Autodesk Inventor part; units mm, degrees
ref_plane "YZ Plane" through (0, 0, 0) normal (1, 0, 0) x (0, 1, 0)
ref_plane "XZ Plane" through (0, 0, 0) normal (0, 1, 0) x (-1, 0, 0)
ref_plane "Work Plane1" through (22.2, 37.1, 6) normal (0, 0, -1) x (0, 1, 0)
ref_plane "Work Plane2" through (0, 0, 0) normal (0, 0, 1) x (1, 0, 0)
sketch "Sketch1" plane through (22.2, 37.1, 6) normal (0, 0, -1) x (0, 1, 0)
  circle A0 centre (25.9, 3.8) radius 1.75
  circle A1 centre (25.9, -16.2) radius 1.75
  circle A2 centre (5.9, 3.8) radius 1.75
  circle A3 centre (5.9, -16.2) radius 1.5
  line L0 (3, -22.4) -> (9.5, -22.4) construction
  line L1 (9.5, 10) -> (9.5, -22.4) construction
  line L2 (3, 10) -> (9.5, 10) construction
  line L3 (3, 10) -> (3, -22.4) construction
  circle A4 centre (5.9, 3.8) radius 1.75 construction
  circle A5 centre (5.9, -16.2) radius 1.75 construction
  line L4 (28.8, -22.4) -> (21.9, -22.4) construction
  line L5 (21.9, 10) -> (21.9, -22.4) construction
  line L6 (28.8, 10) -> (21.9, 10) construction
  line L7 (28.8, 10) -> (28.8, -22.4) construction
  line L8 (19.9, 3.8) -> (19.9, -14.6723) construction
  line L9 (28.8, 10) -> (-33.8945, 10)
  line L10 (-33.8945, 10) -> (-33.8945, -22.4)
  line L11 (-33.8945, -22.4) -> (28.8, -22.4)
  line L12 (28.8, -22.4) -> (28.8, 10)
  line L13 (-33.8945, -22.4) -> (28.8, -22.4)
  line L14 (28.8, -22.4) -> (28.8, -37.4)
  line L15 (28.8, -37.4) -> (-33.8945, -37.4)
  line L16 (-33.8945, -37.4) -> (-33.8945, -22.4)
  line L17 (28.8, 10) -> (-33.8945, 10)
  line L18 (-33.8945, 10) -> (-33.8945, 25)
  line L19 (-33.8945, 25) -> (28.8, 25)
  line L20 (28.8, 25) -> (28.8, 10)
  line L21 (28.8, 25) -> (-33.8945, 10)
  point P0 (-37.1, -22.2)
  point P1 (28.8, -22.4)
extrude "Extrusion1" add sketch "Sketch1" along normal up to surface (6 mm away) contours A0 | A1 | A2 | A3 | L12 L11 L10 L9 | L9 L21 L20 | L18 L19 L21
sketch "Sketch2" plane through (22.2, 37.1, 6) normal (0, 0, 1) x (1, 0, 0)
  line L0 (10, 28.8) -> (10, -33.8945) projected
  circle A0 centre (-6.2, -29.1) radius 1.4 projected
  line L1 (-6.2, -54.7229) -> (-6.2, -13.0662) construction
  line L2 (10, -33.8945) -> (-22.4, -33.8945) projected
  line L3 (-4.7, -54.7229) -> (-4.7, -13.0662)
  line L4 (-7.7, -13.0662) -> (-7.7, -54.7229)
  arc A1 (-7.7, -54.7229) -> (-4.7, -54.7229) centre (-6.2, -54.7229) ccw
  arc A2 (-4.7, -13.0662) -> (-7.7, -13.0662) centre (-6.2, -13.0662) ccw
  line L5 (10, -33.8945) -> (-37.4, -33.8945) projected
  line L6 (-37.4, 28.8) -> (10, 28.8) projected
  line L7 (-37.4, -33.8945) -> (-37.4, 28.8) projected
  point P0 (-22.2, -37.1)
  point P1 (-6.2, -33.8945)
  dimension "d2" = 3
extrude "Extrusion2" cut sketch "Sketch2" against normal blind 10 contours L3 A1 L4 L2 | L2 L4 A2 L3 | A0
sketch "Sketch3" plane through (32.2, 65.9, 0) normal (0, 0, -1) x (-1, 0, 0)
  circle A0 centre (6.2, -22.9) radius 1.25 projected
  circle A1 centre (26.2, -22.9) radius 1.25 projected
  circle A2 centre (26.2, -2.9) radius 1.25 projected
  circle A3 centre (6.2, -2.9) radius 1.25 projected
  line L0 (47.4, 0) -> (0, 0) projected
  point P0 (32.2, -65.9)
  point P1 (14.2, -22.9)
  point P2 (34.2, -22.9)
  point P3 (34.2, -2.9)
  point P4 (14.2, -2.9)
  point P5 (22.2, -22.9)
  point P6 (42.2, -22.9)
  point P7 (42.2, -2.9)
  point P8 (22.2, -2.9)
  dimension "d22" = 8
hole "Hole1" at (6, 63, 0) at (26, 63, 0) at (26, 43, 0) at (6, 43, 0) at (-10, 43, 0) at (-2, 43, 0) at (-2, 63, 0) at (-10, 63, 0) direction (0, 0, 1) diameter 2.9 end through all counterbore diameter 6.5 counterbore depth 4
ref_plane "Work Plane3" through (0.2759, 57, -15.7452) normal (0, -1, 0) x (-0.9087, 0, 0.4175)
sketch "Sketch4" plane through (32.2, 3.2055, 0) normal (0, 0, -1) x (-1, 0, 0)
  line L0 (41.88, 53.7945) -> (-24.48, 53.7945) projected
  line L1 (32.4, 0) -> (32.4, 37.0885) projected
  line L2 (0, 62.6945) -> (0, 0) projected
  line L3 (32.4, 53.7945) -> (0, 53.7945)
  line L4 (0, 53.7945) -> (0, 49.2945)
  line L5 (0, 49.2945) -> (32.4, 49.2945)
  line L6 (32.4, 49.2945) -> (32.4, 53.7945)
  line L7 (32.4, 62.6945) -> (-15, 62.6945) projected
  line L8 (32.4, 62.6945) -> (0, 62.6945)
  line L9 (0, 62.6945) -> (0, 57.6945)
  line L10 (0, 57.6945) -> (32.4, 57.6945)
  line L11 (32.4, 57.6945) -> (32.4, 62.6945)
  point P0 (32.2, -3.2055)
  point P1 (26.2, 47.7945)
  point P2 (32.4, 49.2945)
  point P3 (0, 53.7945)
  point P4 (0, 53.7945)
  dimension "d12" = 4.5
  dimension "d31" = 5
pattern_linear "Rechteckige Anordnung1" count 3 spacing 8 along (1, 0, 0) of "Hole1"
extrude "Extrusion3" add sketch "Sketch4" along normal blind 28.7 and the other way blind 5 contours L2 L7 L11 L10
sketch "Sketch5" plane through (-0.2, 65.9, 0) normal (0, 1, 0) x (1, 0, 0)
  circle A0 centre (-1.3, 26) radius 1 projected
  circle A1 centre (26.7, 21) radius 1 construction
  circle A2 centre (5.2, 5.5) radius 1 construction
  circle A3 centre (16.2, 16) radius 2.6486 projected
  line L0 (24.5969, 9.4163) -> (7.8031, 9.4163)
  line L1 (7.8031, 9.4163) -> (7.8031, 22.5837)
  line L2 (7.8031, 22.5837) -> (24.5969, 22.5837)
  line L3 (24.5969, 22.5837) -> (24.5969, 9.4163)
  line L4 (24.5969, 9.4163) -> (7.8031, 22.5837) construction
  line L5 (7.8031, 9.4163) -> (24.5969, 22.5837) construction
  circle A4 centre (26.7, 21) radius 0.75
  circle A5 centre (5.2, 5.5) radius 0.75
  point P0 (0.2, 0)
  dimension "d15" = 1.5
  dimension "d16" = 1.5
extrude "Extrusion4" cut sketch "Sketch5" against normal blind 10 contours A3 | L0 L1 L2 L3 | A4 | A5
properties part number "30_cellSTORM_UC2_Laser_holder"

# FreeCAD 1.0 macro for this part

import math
import FreeCAD as App
import Part
import Sketcher
Q = App.Units.Quantity


def add_polygon(sketch, points):
    """Adds a closed chain of lines whose ends are joined by coincident constraints."""
    first, n = sketch.GeometryCount, len(points)
    for a, b in zip(points, points[1:] + points[:1]):
        sketch.addGeometry(Part.LineSegment(App.Vector(*a, 0), App.Vector(*b, 0)), False)
    for i in range(n):
        sketch.addConstraint(Sketcher.Constraint("Coincident", first + i, 2, first + (i + 1) % n, 1))

doc = App.newDocument("Part")
body = doc.addObject("PartDesign::Body", "Body")

sketch1 = body.newObject("Sketcher::SketchObject", "Sketch")
sketch1.AttachmentSupport = (doc.getObject("XY_Plane"), [""])
sketch1.MapMode = "FlatFace"
sketch1.AttachmentOffset = App.Placement(App.Vector(0, 0, 6), App.Rotation())
add_polygon(sketch1, [(0, 66), (47, 66), (47, 3), (0, 3)])
sketch1.addConstraint([
    Sketcher.Constraint("Horizontal", 0),
    Sketcher.Constraint("Vertical", 1),
    Sketcher.Constraint("Horizontal", 2),
    Sketcher.Constraint("Vertical", 3),
    Sketcher.Constraint("DistanceX", 0, 1, 0, 2, Q("47.4 mm")),
    Sketcher.Constraint("DistanceX", -1, 1, 0, 2, Q("47.2 mm")),
    Sketcher.Constraint("DistanceY", -1, 1, 0, 2, Q("65.9 mm")),
    Sketcher.Constraint("DistanceY", 1, 2, 1, 1, Q("62.6945 mm")),
])
pad1 = body.newObject("PartDesign::Pad", "Pad")
pad1.Profile = sketch1
pad1.Length = 6
pad1.Reversed = True

sketch2 = body.newObject("Sketcher::SketchObject", "Sketch001")
sketch2.AttachmentSupport = (doc.getObject("XY_Plane"), [""])
sketch2.MapMode = "FlatFace"
sketch2.AttachmentOffset = App.Placement(App.Vector(0, 0, 6), App.Rotation())
sketch2.addGeometry([
    Part.LineSegment(App.Vector(17.5, -17.6, 0), App.Vector(17.5, 24, 0)),
    Part.ArcOfCircle(Part.Circle(App.Vector(16, 24, 0), App.Vector(0, 0, 1), 1.5), math.radians(0), math.radians(180)),
    Part.LineSegment(App.Vector(14.5, 24, 0), App.Vector(14.5, -17.6, 0)),
    Part.ArcOfCircle(Part.Circle(App.Vector(16, -17.6, 0), App.Vector(0, 0, 1), 1.5), math.radians(180), math.radians(360)),
], False)
sketch2.addConstraint([
    Sketcher.Constraint("Tangent", 0, 2, 1, 1),
    Sketcher.Constraint("Tangent", 1, 2, 2, 1),
    Sketcher.Constraint("Tangent", 2, 2, 3, 1),
    Sketcher.Constraint("Tangent", 3, 2, 0, 1),
    Sketcher.Constraint("Vertical", 0),
    Sketcher.Constraint("Vertical", 2),
    Sketcher.Constraint("Radius", 1, Q("1.5 mm")),
    Sketcher.Constraint("DistanceX", -1, 1, 1, 3, Q("16 mm")),
    Sketcher.Constraint("DistanceY", 0, 1, 0, 2, Q("41.6567 mm")),
    Sketcher.Constraint("DistanceY", 3, 3, -1, 1, Q("17.623 mm")),
])
pocket1 = body.newObject("PartDesign::Pocket", "Pocket")
pocket1.Profile = sketch2
pocket1.Length = 10

sketch3 = body.newObject("Sketcher::SketchObject", "Sketch002")
sketch3.AttachmentSupport = (doc.getObject("XY_Plane"), [""])
sketch3.MapMode = "FlatFace"
sketch3.addGeometry([
    Part.Circle(App.Vector(6, 63, 0), App.Vector(0, 0, 1), 1.4),
    Part.Circle(App.Vector(26, 63, 0), App.Vector(0, 0, 1), 1.4),
    Part.Circle(App.Vector(26, 43, 0), App.Vector(0, 0, 1), 1.4),
    Part.Circle(App.Vector(6, 43, 0), App.Vector(0, 0, 1), 1.4),
    Part.Circle(App.Vector(-10, 43, 0), App.Vector(0, 0, 1), 1.4),
    Part.Circle(App.Vector(-2, 43, 0), App.Vector(0, 0, 1), 1.4),
    Part.Circle(App.Vector(-2, 63, 0), App.Vector(0, 0, 1), 1.4),
    Part.Circle(App.Vector(-10, 63, 0), App.Vector(0, 0, 1), 1.4),
], False)
sketch3.addConstraint([
    Sketcher.Constraint("Equal", 0, 1),
    Sketcher.Constraint("Equal", 1, 2),
    Sketcher.Constraint("Equal", 2, 3),
    Sketcher.Constraint("Equal", 3, 4),
    Sketcher.Constraint("Equal", 4, 5),
    Sketcher.Constraint("Equal", 5, 6),
    Sketcher.Constraint("Equal", 6, 7),
    Sketcher.Constraint("Horizontal", 0, 3, 1, 3),
    Sketcher.Constraint("Horizontal", 2, 3, 3, 3),
    Sketcher.Constraint("Horizontal", 3, 3, 4, 3),
    Sketcher.Constraint("Horizontal", 4, 3, 5, 3),
    Sketcher.Constraint("Horizontal", 1, 3, 6, 3),
    Sketcher.Constraint("Horizontal", 6, 3, 7, 3),
    Sketcher.Constraint("Vertical", 1, 3, 2, 3),
    Sketcher.Constraint("Vertical", 0, 3, 3, 3),
    Sketcher.Constraint("Vertical", 5, 3, 6, 3),
    Sketcher.Constraint("Vertical", 4, 3, 7, 3),
    Sketcher.Constraint("Diameter", 0, Q("2.9 mm")),
    Sketcher.Constraint("DistanceX", -1, 1, 0, 3, Q("6 mm")),
    Sketcher.Constraint("DistanceY", -1, 1, 0, 3, Q("63 mm")),
    Sketcher.Constraint("DistanceX", -1, 1, 1, 3, Q("26 mm")),
    Sketcher.Constraint("DistanceY", -1, 1, 2, 3, Q("43 mm")),
    Sketcher.Constraint("DistanceX", 4, 3, -1, 1, Q("10 mm")),
    Sketcher.Constraint("DistanceX", 5, 3, -1, 1, Q("2 mm")),
])
doc.recompute()
hole = body.newObject("PartDesign::Hole", "Hole")
hole.Profile = sketch3
hole.ThreadType = "None"
hole.Diameter = 2.9
hole.DepthType = "ThroughAll"
hole.HoleCutType = "Counterbore"
hole.HoleCutDiameter = 6.5
hole.HoleCutDepth = 4
hole.Reversed = True
doc.recompute()

linearpattern = body.newObject("PartDesign::LinearPattern", "LinearPattern")
linearpattern.Originals = [hole]
linearpattern.Direction = (doc.getObject("X_Axis"), [""])
linearpattern.Mode = "offset"
linearpattern.Offset = 8
linearpattern.Occurrences = 3
body.Tip = linearpattern

sketch4 = body.newObject("Sketcher::SketchObject", "Sketch003")
sketch4.AttachmentSupport = (doc.getObject("XY_Plane"), [""])
sketch4.MapMode = "FlatFace"
add_polygon(sketch4, [(32, 66), (32, 61), (0, 61), (0, 66)])
sketch4.addConstraint([
    Sketcher.Constraint("Vertical", 0),
    Sketcher.Constraint("Horizontal", 1),
    Sketcher.Constraint("Vertical", 2),
    Sketcher.Constraint("Horizontal", 3),
    Sketcher.Constraint("DistanceY", 0, 2, 0, 1, Q("5 mm")),
    Sketcher.Constraint("DistanceX", 1, 2, 1, 1, Q("32.4 mm")),
    Sketcher.Constraint("DistanceX", -1, 1, 0, 2, Q("32.2 mm")),
    Sketcher.Constraint("DistanceY", -1, 1, 0, 2, Q("60.9 mm")),
])
pad2 = body.newObject("PartDesign::Pad", "Pad001")
pad2.Profile = sketch4
pad2.Type = "TwoLengths"
pad2.Length = 28.7
pad2.Length2 = 5
pad2.Reversed = True

sketch5 = body.newObject("Sketcher::SketchObject", "Sketch004")
sketch5.AttachmentSupport = (doc.getObject("XZ_Plane"), [""])
sketch5.MapMode = "FlatFace"
sketch5.AttachmentOffset = App.Placement(App.Vector(0, 0, -65.9), App.Rotation())
add_polygon(sketch5, [(7.6, -9.4), (24.4, -9.4), (24.4, -22.6), (7.6, -22.6)])
sketch5.addGeometry(Part.Circle(App.Vector(26.5, -21, 0), App.Vector(0, 0, 1), 0.8), False)
sketch5.addGeometry(Part.Circle(App.Vector(5, -5.5, 0), App.Vector(0, 0, 1), 0.8), False)
sketch5.addConstraint([
    Sketcher.Constraint("Horizontal", 0),
    Sketcher.Constraint("Vertical", 1),
    Sketcher.Constraint("Horizontal", 2),
    Sketcher.Constraint("Vertical", 3),
    Sketcher.Constraint("Equal", 4, 5),
    Sketcher.Constraint("Diameter", 4, Q("1.5 mm")),
    Sketcher.Constraint("DistanceY", 4, 3, -1, 1, Q("21 mm")),
    Sketcher.Constraint("DistanceX", -1, 1, 5, 3, Q("5 mm")),
    Sketcher.Constraint("DistanceX", -1, 1, 4, 3, Q("26.5 mm")),
    Sketcher.Constraint("DistanceY", 5, 3, -1, 1, Q("5.5 mm")),
    Sketcher.Constraint("DistanceX", 0, 1, 0, 2, Q("16.7938 mm")),
    Sketcher.Constraint("DistanceY", 1, 2, 1, 1, Q("13.1674 mm")),
    Sketcher.Constraint("DistanceX", -1, 1, 0, 2, Q("24.397 mm")),
    Sketcher.Constraint("DistanceY", 0, 2, -1, 1, Q("9.4163 mm")),
])
pocket2 = body.newObject("PartDesign::Pocket", "Pocket001")
pocket2.Profile = sketch5
pocket2.Length = 10
pocket2.Reversed = True

doc.recompute()
